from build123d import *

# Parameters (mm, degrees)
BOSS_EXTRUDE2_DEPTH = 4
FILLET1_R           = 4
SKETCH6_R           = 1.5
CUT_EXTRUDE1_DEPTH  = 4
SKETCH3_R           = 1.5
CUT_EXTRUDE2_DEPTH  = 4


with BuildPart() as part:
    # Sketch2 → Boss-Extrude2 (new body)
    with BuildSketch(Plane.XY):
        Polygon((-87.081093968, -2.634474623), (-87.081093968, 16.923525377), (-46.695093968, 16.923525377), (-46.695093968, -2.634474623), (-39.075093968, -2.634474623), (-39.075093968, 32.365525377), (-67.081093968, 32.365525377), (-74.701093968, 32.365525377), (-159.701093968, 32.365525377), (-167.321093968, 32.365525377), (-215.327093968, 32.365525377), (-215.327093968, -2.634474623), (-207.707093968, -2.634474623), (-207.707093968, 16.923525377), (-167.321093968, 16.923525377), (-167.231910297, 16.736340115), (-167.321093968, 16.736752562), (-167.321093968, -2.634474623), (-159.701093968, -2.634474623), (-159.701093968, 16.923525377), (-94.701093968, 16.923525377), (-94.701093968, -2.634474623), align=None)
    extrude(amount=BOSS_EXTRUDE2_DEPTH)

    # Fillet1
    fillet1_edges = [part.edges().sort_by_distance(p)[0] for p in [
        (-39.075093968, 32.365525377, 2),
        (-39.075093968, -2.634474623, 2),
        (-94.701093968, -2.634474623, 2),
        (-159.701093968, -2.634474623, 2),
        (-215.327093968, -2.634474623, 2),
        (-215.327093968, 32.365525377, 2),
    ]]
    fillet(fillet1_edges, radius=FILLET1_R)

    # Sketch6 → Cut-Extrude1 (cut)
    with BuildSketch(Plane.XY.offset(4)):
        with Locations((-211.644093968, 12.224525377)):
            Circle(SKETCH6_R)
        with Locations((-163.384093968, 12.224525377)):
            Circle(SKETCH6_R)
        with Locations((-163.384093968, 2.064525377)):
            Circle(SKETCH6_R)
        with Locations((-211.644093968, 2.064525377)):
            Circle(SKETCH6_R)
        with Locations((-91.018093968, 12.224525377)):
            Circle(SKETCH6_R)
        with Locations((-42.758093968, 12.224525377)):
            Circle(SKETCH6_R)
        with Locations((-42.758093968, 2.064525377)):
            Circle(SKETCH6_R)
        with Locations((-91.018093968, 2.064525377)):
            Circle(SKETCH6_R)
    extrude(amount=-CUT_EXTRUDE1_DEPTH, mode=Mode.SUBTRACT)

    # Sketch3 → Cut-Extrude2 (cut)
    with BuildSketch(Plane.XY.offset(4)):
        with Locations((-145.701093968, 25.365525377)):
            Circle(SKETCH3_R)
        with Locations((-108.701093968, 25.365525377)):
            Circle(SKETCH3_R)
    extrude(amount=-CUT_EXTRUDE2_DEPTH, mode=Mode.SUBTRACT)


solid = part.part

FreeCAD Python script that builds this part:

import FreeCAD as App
import Part
import Sketcher
Q = App.Units.Quantity


def edges_at(feature, points):
    """Names of the edges that pass closest to the given points."""
    edges = feature.Shape.Edges
    near = lambda p: min(range(len(edges)), key=lambda i: edges[i].distToShape(Part.Vertex(*p))[0])
    return sorted({f"Edge{near(p) + 1}" for p in points})


def add_polygon(sketch, points):
    """Adds a closed chain of lines whose ends are joined by coincident constraints."""
    first, n = sketch.GeometryCount, len(points)
    for a, b in zip(points, points[1:] + points[:1]):
        sketch.addGeometry(Part.LineSegment(App.Vector(*a, 0), App.Vector(*b, 0)), False)
    for i in range(n):
        sketch.addConstraint(Sketcher.Constraint("Coincident", first + i, 2, first + (i + 1) % n, 1))

doc = App.newDocument("Part")
body = doc.addObject("PartDesign::Body", "Body")

sketch1 = body.newObject("Sketcher::SketchObject", "Sketch")
sketch1.AttachmentSupport = (doc.getObject("XY_Plane"), [""])
sketch1.MapMode = "FlatFace"
add_polygon(sketch1, [(-87.08, -2.63), (-87.08, 16.92), (-46.7, 16.92), (-46.7, -2.63), (-39.08, -2.63), (-39.08, 32.37), (-215.33, 32.37), (-215.33, -2.63), (-207.71, -2.63), (-207.71, 16.92), (-167.32, 16.92), (-167.23, 16.74), (-167.32, 16.74), (-167.32, -2.63), (-159.7, -2.63), (-159.7, 16.92), (-94.7, 16.92), (-94.7, -2.63)])
sketch1.addConstraint(Sketcher.Constraint("Vertical", 0))
sketch1.addConstraint(Sketcher.Constraint("Horizontal", 1))
sketch1.addConstraint(Sketcher.Constraint("Vertical", 2))
sketch1.addConstraint(Sketcher.Constraint("Horizontal", 3))
sketch1.addConstraint(Sketcher.Constraint("Vertical", 4))
sketch1.addConstraint(Sketcher.Constraint("Horizontal", 5))
sketch1.addConstraint(Sketcher.Constraint("Vertical", 6))
sketch1.addConstraint(Sketcher.Constraint("Horizontal", 7))
sketch1.addConstraint(Sketcher.Constraint("Vertical", 8))
sketch1.addConstraint(Sketcher.Constraint("Horizontal", 9))
sketch1.addConstraint(Sketcher.Constraint("Vertical", 12))
sketch1.addConstraint(Sketcher.Constraint("Horizontal", 13))
sketch1.addConstraint(Sketcher.Constraint("Vertical", 14))
sketch1.addConstraint(Sketcher.Constraint("Horizontal", 15))
sketch1.addConstraint(Sketcher.Constraint("Vertical", 16))
sketch1.addConstraint(Sketcher.Constraint("Horizontal", 17))
sketch1.addConstraint(Sketcher.Constraint("Horizontal", 3, 2, 6, 2))
sketch1.addConstraint(Sketcher.Constraint("Horizontal", 1, 2, 8, 2))
sketch1.addConstraint(Sketcher.Constraint("Horizontal", 7, 2, 12, 2))
sketch1.addConstraint(Sketcher.Constraint("Horizontal", 9, 2, 14, 2))
sketch1.addConstraint(Sketcher.Constraint("Horizontal", 13, 2, 16, 2))
sketch1.addConstraint(Sketcher.Constraint("Vertical", 9, 2, 11, 2))
sketch1.addConstraint(Sketcher.Constraint("Equal", 3, 7))
sketch1.addConstraint(Sketcher.Constraint("Equal", 1, 9))
sketch1.addConstraint(Sketcher.Constraint("Equal", 7, 13))
sketch1.addConstraint(Sketcher.Constraint("Equal", 13, 17))
sketch1.addConstraint(Sketcher.Constraint("DistanceX", 15, 1, 15, 2, Q("65 mm")))
sketch1.addConstraint(Sketcher.Constraint("DistanceY", 4, 1, 4, 2, Q("35 mm")))
sketch1.addConstraint(Sketcher.Constraint("DistanceX", 3, 1, 3, 2, Q("7.62 mm")))
sketch1.addConstraint(Sketcher.Constraint("DistanceX", 1, 1, 1, 2, Q("40.386 mm")))
sketch1.addConstraint(Sketcher.Constraint("DistanceY", 0, 1, 0, 2, Q("19.558 mm")))
sketch1.addConstraint(Sketcher.Constraint("DistanceY", 12, 2, 12, 1, Q("19.371227 mm")))
sketch1.addConstraint(Sketcher.Constraint("DistanceX", 10, 2, -1, 1, Q("167.23191 mm")))
sketch1.addConstraint(Sketcher.Constraint("DistanceY", -1, 1, 10, 2, Q("16.73634 mm")))
sketch1.addConstraint(Sketcher.Constraint("Distance", 10, Q("0.207345 mm")))
sketch1.addConstraint(Sketcher.Constraint("Distance", 11, Q("0.089185 mm")))
pad1 = body.newObject("PartDesign::Pad", "Pad")
pad1.Profile = sketch1
pad1.Length = 4
doc.recompute()

fillet = body.newObject("PartDesign::Fillet", "Fillet")
fillet.Base = (pad1, edges_at(pad1, [
    (-39.075, 32.366, 2),
    (-39.075, -2.634, 2),
    (-94.701, -2.634, 2),
    (-159.701, -2.634, 2),
    (-215.327, -2.634, 2),
    (-215.327, 32.366, 2),
]))
fillet.Radius = 4

sketch2 = body.newObject("Sketcher::SketchObject", "Sketch001")
sketch2.AttachmentSupport = (doc.getObject("XY_Plane"), [""])
sketch2.MapMode = "FlatFace"
sketch2.AttachmentOffset = App.Placement(App.Vector(0, 0, 4), App.Rotation())
sketch2.addGeometry(Part.Circle(App.Vector(-211.6, 12.2, 0), App.Vector(0, 0, 1), 1.5), False)
sketch2.addGeometry(Part.Circle(App.Vector(-163.4, 12.2, 0), App.Vector(0, 0, 1), 1.5), False)
sketch2.addGeometry(Part.Circle(App.Vector(-163.4, 2.1, 0), App.Vector(0, 0, 1), 1.5), False)
sketch2.addGeometry(Part.Circle(App.Vector(-211.6, 2.1, 0), App.Vector(0, 0, 1), 1.5), False)
sketch2.addGeometry(Part.Circle(App.Vector(-91, 12.2, 0), App.Vector(0, 0, 1), 1.5), False)
sketch2.addGeometry(Part.Circle(App.Vector(-42.8, 12.2, 0), App.Vector(0, 0, 1), 1.5), False)
sketch2.addGeometry(Part.Circle(App.Vector(-42.8, 2.1, 0), App.Vector(0, 0, 1), 1.5), False)
sketch2.addGeometry(Part.Circle(App.Vector(-91, 2.1, 0), App.Vector(0, 0, 1), 1.5), False)
sketch2.addConstraint(Sketcher.Constraint("Equal", 0, 1))
sketch2.addConstraint(Sketcher.Constraint("Equal", 1, 2))
sketch2.addConstraint(Sketcher.Constraint("Equal", 2, 3))
sketch2.addConstraint(Sketcher.Constraint("Equal", 3, 4))
sketch2.addConstraint(Sketcher.Constraint("Equal", 4, 5))
sketch2.addConstraint(Sketcher.Constraint("Equal", 5, 6))
sketch2.addConstraint(Sketcher.Constraint("Equal", 6, 7))
sketch2.addConstraint(Sketcher.Constraint("Horizontal", 0, 3, 1, 3))
sketch2.addConstraint(Sketcher.Constraint("Horizontal", 2, 3, 3, 3))
sketch2.addConstraint(Sketcher.Constraint("Horizontal", 1, 3, 4, 3))
sketch2.addConstraint(Sketcher.Constraint("Horizontal", 4, 3, 5, 3))
sketch2.addConstraint(Sketcher.Constraint("Horizontal", 3, 3, 6, 3))
sketch2.addConstraint(Sketcher.Constraint("Horizontal", 6, 3, 7, 3))
sketch2.addConstraint(Sketcher.Constraint("Vertical", 1, 3, 2, 3))
sketch2.addConstraint(Sketcher.Constraint("Vertical", 0, 3, 3, 3))
sketch2.addConstraint(Sketcher.Constraint("Vertical", 5, 3, 6, 3))
sketch2.addConstraint(Sketcher.Constraint("Vertical", 4, 3, 7, 3))
sketch2.addConstraint(Sketcher.Constraint("Diameter", 0, Q("3 mm")))
sketch2.addConstraint(Sketcher.Constraint("DistanceX", 0, 3, 1, 3, Q("48.26 mm")))
sketch2.addConstraint(Sketcher.Constraint("DistanceY", 2, 3, 1, 3, Q("10.16 mm")))
sketch2.addConstraint(Sketcher.Constraint("DistanceX", 4, 3, 5, 3, Q("48.26 mm")))
sketch2.addConstraint(Sketcher.Constraint("DistanceX", 1, 3, 4, 3, Q("72.366 mm")))
sketch2.addConstraint(Sketcher.Constraint("DistanceX", 0, 3, -1, 1, Q("211.644094 mm")))
sketch2.addConstraint(Sketcher.Constraint("DistanceY", -1, 1, 0, 3, Q("12.224525 mm")))
pocket1 = body.newObject("PartDesign::Pocket", "Pocket")
pocket1.Profile = sketch2
pocket1.Length = 4

sketch3 = body.newObject("Sketcher::SketchObject", "Sketch002")
sketch3.AttachmentSupport = (doc.getObject("XY_Plane"), [""])
sketch3.MapMode = "FlatFace"
sketch3.AttachmentOffset = App.Placement(App.Vector(0, 0, 4), App.Rotation())
sketch3.addGeometry(Part.Circle(App.Vector(-145.7, 25.4, 0), App.Vector(0, 0, 1), 1.5), False)
sketch3.addGeometry(Part.Circle(App.Vector(-108.7, 25.4, 0), App.Vector(0, 0, 1), 1.5), False)
sketch3.addConstraint(Sketcher.Constraint("Equal", 0, 1))
sketch3.addConstraint(Sketcher.Constraint("Horizontal", 0, 3, 1, 3))
sketch3.addConstraint(Sketcher.Constraint("Diameter", 0, Q("3 mm")))
sketch3.addConstraint(Sketcher.Constraint("DistanceX", 0, 3, 1, 3, Q("37 mm")))
sketch3.addConstraint(Sketcher.Constraint("DistanceX", 0, 3, -1, 1, Q("145.701094 mm")))
sketch3.addConstraint(Sketcher.Constraint("DistanceY", -1, 1, 0, 3, Q("25.365525 mm")))
pocket2 = body.newObject("PartDesign::Pocket", "Pocket001")
pocket2.Profile = sketch3
pocket2.Length = 4

doc.recompute()
